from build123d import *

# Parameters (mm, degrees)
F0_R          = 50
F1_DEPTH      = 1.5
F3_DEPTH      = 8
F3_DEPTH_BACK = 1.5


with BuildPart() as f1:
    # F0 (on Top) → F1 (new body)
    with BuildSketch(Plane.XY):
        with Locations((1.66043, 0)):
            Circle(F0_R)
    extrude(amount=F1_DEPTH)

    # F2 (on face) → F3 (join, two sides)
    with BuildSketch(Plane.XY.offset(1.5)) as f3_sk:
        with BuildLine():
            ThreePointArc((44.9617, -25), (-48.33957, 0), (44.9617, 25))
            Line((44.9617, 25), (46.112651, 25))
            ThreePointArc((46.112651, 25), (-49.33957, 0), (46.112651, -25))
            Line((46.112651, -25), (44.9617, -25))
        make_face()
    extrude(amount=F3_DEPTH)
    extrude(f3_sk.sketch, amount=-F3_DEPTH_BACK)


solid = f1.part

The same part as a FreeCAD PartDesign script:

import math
import FreeCAD as App
import Part
import Sketcher
from FreeCAD import Vector

doc = App.newDocument("Part")
params = doc.addObject("Spreadsheet::Sheet", "Params")
for row, (alias, value) in enumerate([
    ("sketch1_diameter", "100 mm"),
    ("pad1_length", "1.5 mm"),
    ("sketch2_radius", "50 mm"),
    ("sketch2_radius2", "51 mm"),
    ("pad2_length", "8 mm"),
    ("pad2_length2", "1.5 mm"),
], start=1):
    params.set(f"A{row}", alias)
    params.set(f"B{row}", "=" + value)
    params.setAlias(f"B{row}", alias)

body = doc.addObject("PartDesign::Body", "Body")

# Sketch on XY plane
sketch1 = doc.addObject("Sketcher::SketchObject", "Sketch")
body.addObject(sketch1)
sketch1.AttachmentSupport = (doc.XY_Plane, [""])
sketch1.MapMode = "FlatFace"
sketch1.addGeometry(Part.Circle(Vector(1.66043, 0, 0), Vector(0, 0, 1), 50), False)
sketch1.addConstraint([
    Sketcher.Constraint("PointOnObject", 0, 3, -1),
    Sketcher.Constraint("Diameter", 0, 100.0),
    Sketcher.Constraint("DistanceX", -1, 1, 0, 3, 1.66043),
])
sketch1.setExpression("Constraints[1]", "Params.sketch1_diameter")
pad1 = doc.addObject("PartDesign::Pad", "Pad")
body.addObject(pad1)
pad1.Profile = sketch1
pad1.setExpression("Length", "Params.pad1_length")

# Sketch on XY plane
sketch2 = doc.addObject("Sketcher::SketchObject", "Sketch001")
body.addObject(sketch2)
sketch2.AttachmentSupport = (doc.XY_Plane, [""])
sketch2.MapMode = "FlatFace"
sketch2.AttachmentOffset = App.Placement(Vector(0, 0, 1.5), App.Rotation())
sketch2.addGeometry([
    Part.ArcOfCircle(Part.Circle(Vector(1.66043, 0, 0), Vector(0, 0, 1), 50), math.radians(30), math.radians(330)),
    Part.LineSegment(Vector(44.9617, 25, 0), Vector(46.112651, 25, 0)),
    Part.ArcOfCircle(Part.Circle(Vector(1.66043, 0, 0), Vector(0, 0, 1), 51), math.radians(29.35347), math.radians(330.64653)),
    Part.LineSegment(Vector(46.112651, -25, 0), Vector(44.9617, -25, 0)),
], False)
sketch2.addConstraint([
    Sketcher.Constraint("Coincident", 0, 1, 1, 1),
    Sketcher.Constraint("Coincident", 1, 2, 2, 1),
    Sketcher.Constraint("Coincident", 2, 2, 3, 1),
    Sketcher.Constraint("Coincident", 3, 2, 0, 2),
    Sketcher.Constraint("Horizontal", 1),
    Sketcher.Constraint("Horizontal", 3),
    Sketcher.Constraint("Coincident", 2, 3, 0, 3),
    Sketcher.Constraint("Symmetric", 1, 2, 2, 2, -1),
    Sketcher.Constraint("Radius", 0, 50.0),
    Sketcher.Constraint("Radius", 2, 51.0),
    Sketcher.Constraint("DistanceY", -1, 1, 0, 1, 25.0),
    Sketcher.Constraint("DistanceX", -1, 1, 0, 1, 44.9617),
])
sketch2.setExpression("Constraints[8]", "Params.sketch2_radius")
sketch2.setExpression("Constraints[9]", "Params.sketch2_radius2")
pad2 = doc.addObject("PartDesign::Pad", "Pad001")
body.addObject(pad2)
pad2.Profile = sketch2
pad2.Type = "TwoLengths"
pad2.setExpression("Length", "Params.pad2_length")
pad2.setExpression("Length2", "Params.pad2_length2")

doc.recompute()
